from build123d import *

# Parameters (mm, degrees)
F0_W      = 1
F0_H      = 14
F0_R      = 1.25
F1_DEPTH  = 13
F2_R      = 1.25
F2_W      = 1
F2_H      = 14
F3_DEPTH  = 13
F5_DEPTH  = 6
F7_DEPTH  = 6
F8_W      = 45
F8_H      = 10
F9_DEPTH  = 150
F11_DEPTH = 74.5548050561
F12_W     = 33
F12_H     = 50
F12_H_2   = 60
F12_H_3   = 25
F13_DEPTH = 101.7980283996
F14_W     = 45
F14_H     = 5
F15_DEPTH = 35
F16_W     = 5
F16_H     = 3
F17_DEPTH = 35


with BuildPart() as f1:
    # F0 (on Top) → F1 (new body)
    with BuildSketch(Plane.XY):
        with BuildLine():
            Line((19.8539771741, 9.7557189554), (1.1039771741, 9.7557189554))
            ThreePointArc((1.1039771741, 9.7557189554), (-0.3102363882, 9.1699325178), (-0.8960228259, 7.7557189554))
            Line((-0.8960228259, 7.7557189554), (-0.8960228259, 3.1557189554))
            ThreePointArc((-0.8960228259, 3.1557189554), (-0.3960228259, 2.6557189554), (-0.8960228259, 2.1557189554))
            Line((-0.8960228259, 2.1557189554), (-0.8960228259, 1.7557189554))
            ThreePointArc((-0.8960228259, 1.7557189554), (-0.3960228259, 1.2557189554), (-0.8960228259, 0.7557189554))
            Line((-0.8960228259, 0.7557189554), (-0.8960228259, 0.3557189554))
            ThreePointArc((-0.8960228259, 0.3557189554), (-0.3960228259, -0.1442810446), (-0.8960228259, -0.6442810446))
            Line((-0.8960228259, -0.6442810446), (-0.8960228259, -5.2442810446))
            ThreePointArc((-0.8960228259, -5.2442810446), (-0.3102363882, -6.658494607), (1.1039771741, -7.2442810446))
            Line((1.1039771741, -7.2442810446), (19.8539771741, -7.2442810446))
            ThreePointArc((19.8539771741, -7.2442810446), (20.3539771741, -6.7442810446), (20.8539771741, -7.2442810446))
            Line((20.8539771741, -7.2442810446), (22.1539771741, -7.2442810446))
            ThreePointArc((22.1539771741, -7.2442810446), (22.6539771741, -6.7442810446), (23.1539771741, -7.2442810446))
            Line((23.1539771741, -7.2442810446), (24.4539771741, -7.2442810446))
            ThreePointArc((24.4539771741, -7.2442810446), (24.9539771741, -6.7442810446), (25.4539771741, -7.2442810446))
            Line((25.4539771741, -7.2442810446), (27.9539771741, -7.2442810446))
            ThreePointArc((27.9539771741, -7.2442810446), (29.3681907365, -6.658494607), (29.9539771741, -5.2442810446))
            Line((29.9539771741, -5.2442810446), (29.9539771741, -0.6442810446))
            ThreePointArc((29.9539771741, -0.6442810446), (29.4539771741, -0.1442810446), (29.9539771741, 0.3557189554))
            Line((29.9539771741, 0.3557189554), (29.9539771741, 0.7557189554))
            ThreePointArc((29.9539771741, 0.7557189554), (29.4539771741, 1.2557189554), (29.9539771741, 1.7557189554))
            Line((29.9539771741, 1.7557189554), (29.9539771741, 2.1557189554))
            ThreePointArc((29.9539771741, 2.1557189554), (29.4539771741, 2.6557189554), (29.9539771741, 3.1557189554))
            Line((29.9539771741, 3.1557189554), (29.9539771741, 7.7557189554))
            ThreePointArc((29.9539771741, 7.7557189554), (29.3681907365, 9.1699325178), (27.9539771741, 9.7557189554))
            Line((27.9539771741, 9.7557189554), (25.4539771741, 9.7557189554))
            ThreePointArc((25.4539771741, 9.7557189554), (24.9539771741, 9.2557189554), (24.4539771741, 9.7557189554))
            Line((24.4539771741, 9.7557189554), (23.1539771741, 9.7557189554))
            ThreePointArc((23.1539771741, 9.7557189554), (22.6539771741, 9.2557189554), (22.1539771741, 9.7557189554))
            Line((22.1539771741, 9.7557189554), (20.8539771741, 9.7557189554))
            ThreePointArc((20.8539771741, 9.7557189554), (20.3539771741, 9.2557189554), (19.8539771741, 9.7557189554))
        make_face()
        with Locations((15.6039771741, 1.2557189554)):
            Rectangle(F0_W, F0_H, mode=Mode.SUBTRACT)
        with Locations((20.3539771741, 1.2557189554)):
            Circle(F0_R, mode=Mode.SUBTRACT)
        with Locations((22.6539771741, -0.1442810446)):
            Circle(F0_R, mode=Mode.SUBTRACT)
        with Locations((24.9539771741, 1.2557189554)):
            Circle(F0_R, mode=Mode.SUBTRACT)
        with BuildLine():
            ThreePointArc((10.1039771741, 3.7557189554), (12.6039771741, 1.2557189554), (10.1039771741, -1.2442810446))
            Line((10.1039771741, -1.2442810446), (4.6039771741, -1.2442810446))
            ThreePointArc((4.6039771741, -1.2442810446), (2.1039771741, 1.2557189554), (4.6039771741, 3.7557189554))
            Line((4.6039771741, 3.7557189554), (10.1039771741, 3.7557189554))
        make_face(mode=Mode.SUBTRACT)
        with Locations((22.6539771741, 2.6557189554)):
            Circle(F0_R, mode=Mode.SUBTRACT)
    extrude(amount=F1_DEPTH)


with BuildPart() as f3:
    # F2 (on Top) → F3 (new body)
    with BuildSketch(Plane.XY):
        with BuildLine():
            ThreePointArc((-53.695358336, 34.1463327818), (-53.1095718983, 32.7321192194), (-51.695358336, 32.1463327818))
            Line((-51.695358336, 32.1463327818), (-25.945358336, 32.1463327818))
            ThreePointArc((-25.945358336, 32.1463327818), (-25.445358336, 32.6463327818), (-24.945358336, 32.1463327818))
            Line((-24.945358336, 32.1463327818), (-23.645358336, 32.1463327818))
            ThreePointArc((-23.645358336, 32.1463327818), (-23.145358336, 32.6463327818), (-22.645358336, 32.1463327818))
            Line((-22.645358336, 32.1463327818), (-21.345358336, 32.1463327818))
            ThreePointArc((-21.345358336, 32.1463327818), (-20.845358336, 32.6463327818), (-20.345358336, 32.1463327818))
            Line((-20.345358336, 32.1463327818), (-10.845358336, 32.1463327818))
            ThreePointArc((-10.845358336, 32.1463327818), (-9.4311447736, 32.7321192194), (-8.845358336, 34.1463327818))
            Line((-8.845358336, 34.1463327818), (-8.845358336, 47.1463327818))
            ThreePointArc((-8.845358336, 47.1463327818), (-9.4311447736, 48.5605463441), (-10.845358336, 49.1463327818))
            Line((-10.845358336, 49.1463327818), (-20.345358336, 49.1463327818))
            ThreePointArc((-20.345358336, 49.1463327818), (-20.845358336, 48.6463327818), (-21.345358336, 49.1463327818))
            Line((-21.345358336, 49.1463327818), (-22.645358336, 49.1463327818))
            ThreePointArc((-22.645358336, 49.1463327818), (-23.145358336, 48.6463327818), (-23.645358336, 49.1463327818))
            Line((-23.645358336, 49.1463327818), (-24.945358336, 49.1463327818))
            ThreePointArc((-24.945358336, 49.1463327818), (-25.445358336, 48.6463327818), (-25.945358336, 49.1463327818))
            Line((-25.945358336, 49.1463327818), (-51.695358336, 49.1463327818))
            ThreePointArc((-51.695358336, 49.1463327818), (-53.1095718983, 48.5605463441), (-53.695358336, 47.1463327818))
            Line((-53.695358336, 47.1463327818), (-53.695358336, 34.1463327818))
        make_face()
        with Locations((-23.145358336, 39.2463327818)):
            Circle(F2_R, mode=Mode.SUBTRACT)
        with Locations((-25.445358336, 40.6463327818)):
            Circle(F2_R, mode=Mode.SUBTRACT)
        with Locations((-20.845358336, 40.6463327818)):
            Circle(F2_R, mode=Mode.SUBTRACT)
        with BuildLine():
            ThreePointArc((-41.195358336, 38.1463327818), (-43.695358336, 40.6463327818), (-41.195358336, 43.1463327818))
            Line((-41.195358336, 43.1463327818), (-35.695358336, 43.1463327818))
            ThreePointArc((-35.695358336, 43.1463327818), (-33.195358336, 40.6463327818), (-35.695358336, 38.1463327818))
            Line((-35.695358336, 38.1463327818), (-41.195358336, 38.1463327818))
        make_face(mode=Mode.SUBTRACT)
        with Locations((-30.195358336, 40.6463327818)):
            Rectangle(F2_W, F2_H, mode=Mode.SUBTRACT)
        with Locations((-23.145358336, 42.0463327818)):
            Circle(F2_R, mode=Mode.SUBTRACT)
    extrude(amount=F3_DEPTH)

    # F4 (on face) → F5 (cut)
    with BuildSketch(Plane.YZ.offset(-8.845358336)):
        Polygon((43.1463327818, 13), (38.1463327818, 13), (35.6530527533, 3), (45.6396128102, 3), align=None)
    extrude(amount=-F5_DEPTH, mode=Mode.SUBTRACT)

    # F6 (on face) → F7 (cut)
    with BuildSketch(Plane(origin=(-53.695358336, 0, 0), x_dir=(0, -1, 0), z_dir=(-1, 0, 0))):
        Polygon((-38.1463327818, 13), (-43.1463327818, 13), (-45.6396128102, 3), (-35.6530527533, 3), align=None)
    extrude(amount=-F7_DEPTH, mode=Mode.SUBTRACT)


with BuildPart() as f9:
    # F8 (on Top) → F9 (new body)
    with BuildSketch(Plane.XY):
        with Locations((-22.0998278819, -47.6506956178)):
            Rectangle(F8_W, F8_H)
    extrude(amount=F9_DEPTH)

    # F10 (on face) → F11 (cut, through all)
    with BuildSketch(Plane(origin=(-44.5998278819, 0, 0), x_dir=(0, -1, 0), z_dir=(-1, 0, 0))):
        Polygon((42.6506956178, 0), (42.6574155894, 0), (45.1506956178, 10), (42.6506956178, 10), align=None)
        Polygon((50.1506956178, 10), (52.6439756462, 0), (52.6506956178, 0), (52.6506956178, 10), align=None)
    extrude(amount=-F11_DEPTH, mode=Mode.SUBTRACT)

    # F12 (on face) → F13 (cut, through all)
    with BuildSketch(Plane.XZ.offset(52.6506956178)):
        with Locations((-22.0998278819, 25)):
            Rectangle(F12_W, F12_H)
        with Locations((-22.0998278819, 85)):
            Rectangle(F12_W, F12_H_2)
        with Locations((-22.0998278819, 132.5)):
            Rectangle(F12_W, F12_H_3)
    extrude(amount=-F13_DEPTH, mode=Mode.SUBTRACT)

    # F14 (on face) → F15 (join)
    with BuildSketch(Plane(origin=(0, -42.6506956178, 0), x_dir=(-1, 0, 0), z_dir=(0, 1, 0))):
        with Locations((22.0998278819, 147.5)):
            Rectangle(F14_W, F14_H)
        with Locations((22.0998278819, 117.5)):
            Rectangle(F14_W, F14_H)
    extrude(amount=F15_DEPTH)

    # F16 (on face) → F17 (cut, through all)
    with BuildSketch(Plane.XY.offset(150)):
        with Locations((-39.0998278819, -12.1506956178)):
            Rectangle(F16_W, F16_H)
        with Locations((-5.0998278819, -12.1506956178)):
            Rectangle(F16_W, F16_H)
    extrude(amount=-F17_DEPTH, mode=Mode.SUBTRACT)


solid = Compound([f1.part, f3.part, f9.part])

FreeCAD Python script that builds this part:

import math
import FreeCAD as App
import Part
import Sketcher
Q = App.Units.Quantity


def add_polygon(sketch, points):
    """Adds a closed chain of lines whose ends are joined by coincident constraints."""
    first, n = sketch.GeometryCount, len(points)
    for a, b in zip(points, points[1:] + points[:1]):
        sketch.addGeometry(Part.LineSegment(App.Vector(*a, 0), App.Vector(*b, 0)), False)
    for i in range(n):
        sketch.addConstraint(Sketcher.Constraint("Coincident", first + i, 2, first + (i + 1) % n, 1))

doc = App.newDocument("Part")
body = doc.addObject("PartDesign::Body", "Body")

sketch1 = doc.addObject("Sketcher::SketchObject", "Sketch")
body.addObject(sketch1)
sketch1.AttachmentSupport = (doc.XY_Plane, [""])
sketch1.MapMode = "FlatFace"
sketch1.addGeometry(Part.LineSegment(App.Vector(19.85, 9.76, 0), App.Vector(1.1, 9.76, 0)), False)
sketch1.addGeometry(Part.ArcOfCircle(Part.Circle(App.Vector(1.1, 7.76, 0), App.Vector(0, 0, 1), 2), math.radians(90), math.radians(180)), False)
sketch1.addGeometry(Part.LineSegment(App.Vector(-0.9, 7.76, 0), App.Vector(-0.9, 3.16, 0)), False)
sketch1.addGeometry(Part.ArcOfCircle(Part.Circle(App.Vector(-0.9, 2.66, 0), App.Vector(0, 0, 1), 0.5), math.radians(-90), math.radians(90)), False)
sketch1.addGeometry(Part.LineSegment(App.Vector(-0.9, 2.16, 0), App.Vector(-0.9, 1.76, 0)), False)
sketch1.addGeometry(Part.ArcOfCircle(Part.Circle(App.Vector(-0.9, 1.26, 0), App.Vector(0, 0, 1), 0.5), math.radians(-90), math.radians(90)), False)
sketch1.addGeometry(Part.LineSegment(App.Vector(-0.9, 0.76, 0), App.Vector(-0.9, 0.36, 0)), False)
sketch1.addGeometry(Part.ArcOfCircle(Part.Circle(App.Vector(-0.9, -0.14, 0), App.Vector(0, 0, 1), 0.5), math.radians(-90), math.radians(90)), False)
sketch1.addGeometry(Part.LineSegment(App.Vector(-0.9, -0.64, 0), App.Vector(-0.9, -5.24, 0)), False)
sketch1.addGeometry(Part.ArcOfCircle(Part.Circle(App.Vector(1.1, -5.24, 0), App.Vector(0, 0, 1), 2), math.radians(180), math.radians(270)), False)
sketch1.addGeometry(Part.LineSegment(App.Vector(1.1, -7.24, 0), App.Vector(19.85, -7.24, 0)), False)
sketch1.addGeometry(Part.ArcOfCircle(Part.Circle(App.Vector(20.35, -7.24, 0), App.Vector(0, 0, 1), 0.5), math.radians(0), math.radians(180)), False)
sketch1.addGeometry(Part.LineSegment(App.Vector(20.85, -7.24, 0), App.Vector(22.15, -7.24, 0)), False)
sketch1.addGeometry(Part.ArcOfCircle(Part.Circle(App.Vector(22.65, -7.24, 0), App.Vector(0, 0, 1), 0.5), math.radians(0), math.radians(180)), False)
sketch1.addGeometry(Part.LineSegment(App.Vector(23.15, -7.24, 0), App.Vector(24.45, -7.24, 0)), False)
sketch1.addGeometry(Part.ArcOfCircle(Part.Circle(App.Vector(24.95, -7.24, 0), App.Vector(0, 0, 1), 0.5), math.radians(0), math.radians(180)), False)
sketch1.addGeometry(Part.LineSegment(App.Vector(25.45, -7.24, 0), App.Vector(27.95, -7.24, 0)), False)
sketch1.addGeometry(Part.ArcOfCircle(Part.Circle(App.Vector(27.95, -5.24, 0), App.Vector(0, 0, 1), 2), math.radians(-90), math.radians(0)), False)
sketch1.addGeometry(Part.LineSegment(App.Vector(29.95, -5.24, 0), App.Vector(29.95, -0.64, 0)), False)
sketch1.addGeometry(Part.ArcOfCircle(Part.Circle(App.Vector(29.95, -0.14, 0), App.Vector(0, 0, 1), 0.5), math.radians(90), math.radians(270)), False)
sketch1.addGeometry(Part.LineSegment(App.Vector(29.95, 0.36, 0), App.Vector(29.95, 0.76, 0)), False)
sketch1.addGeometry(Part.ArcOfCircle(Part.Circle(App.Vector(29.95, 1.26, 0), App.Vector(0, 0, 1), 0.5), math.radians(90), math.radians(270)), False)
sketch1.addGeometry(Part.LineSegment(App.Vector(29.95, 1.76, 0), App.Vector(29.95, 2.16, 0)), False)
sketch1.addGeometry(Part.ArcOfCircle(Part.Circle(App.Vector(29.95, 2.66, 0), App.Vector(0, 0, 1), 0.5), math.radians(90), math.radians(270)), False)
sketch1.addGeometry(Part.LineSegment(App.Vector(29.95, 3.16, 0), App.Vector(29.95, 7.76, 0)), False)
sketch1.addGeometry(Part.ArcOfCircle(Part.Circle(App.Vector(27.95, 7.76, 0), App.Vector(0, 0, 1), 2), math.radians(0), math.radians(90)), False)
sketch1.addGeometry(Part.LineSegment(App.Vector(27.95, 9.76, 0), App.Vector(25.45, 9.76, 0)), False)
sketch1.addGeometry(Part.ArcOfCircle(Part.Circle(App.Vector(24.95, 9.76, 0), App.Vector(0, 0, 1), 0.5), math.radians(180), math.radians(360)), False)
sketch1.addGeometry(Part.LineSegment(App.Vector(24.45, 9.76, 0), App.Vector(23.15, 9.76, 0)), False)
sketch1.addGeometry(Part.ArcOfCircle(Part.Circle(App.Vector(22.65, 9.76, 0), App.Vector(0, 0, 1), 0.5), math.radians(180), math.radians(360)), False)
sketch1.addGeometry(Part.LineSegment(App.Vector(22.15, 9.76, 0), App.Vector(20.85, 9.76, 0)), False)
sketch1.addGeometry(Part.ArcOfCircle(Part.Circle(App.Vector(20.35, 9.76, 0), App.Vector(0, 0, 1), 0.5), math.radians(180), math.radians(360)), False)
sketch1.addGeometry(Part.Circle(App.Vector(22.65, -0.14, 0), App.Vector(0, 0, 1), 1.25), False)
sketch1.addGeometry(Part.LineSegment(App.Vector(4.6, 3.76, 0), App.Vector(10.1, 3.76, 0)), False)
sketch1.addGeometry(Part.ArcOfCircle(Part.Circle(App.Vector(10.1, 1.26, 0), App.Vector(0, 0, 1), 2.5), math.radians(-90), math.radians(90)), False)
sketch1.addGeometry(Part.LineSegment(App.Vector(10.1, -1.24, 0), App.Vector(4.6, -1.24, 0)), False)
sketch1.addGeometry(Part.ArcOfCircle(Part.Circle(App.Vector(4.6, 1.26, 0), App.Vector(0, 0, 1), 2.5), math.radians(90), math.radians(270)), False)
add_polygon(sketch1, [(16.1, -5.74), (15.1, -5.74), (15.1, 8.26), (16.1, 8.26)])
sketch1.addGeometry(Part.Circle(App.Vector(20.35, 1.26, 0), App.Vector(0, 0, 1), 1.25), False)
sketch1.addGeometry(Part.Circle(App.Vector(22.65, 2.66, 0), App.Vector(0, 0, 1), 1.25), False)
sketch1.addGeometry(Part.Circle(App.Vector(24.95, 1.26, 0), App.Vector(0, 0, 1), 1.25), False)
sketch1.addConstraint(Sketcher.Constraint("Tangent", 0, 2, 1, 1))
sketch1.addConstraint(Sketcher.Constraint("Tangent", 1, 2, 2, 1))
sketch1.addConstraint(Sketcher.Constraint("Coincident", 2, 2, 3, 2))
sketch1.addConstraint(Sketcher.Constraint("Coincident", 3, 1, 4, 1))
sketch1.addConstraint(Sketcher.Constraint("Coincident", 4, 2, 5, 2))
sketch1.addConstraint(Sketcher.Constraint("Coincident", 5, 1, 6, 1))
sketch1.addConstraint(Sketcher.Constraint("Coincident", 6, 2, 7, 2))
sketch1.addConstraint(Sketcher.Constraint("Coincident", 7, 1, 8, 1))
sketch1.addConstraint(Sketcher.Constraint("Tangent", 8, 2, 9, 1))
sketch1.addConstraint(Sketcher.Constraint("Tangent", 9, 2, 10, 1))
sketch1.addConstraint(Sketcher.Constraint("Coincident", 10, 2, 11, 2))
sketch1.addConstraint(Sketcher.Constraint("Coincident", 11, 1, 12, 1))
sketch1.addConstraint(Sketcher.Constraint("Coincident", 12, 2, 13, 2))
sketch1.addConstraint(Sketcher.Constraint("Coincident", 13, 1, 14, 1))
sketch1.addConstraint(Sketcher.Constraint("Coincident", 14, 2, 15, 2))
sketch1.addConstraint(Sketcher.Constraint("Coincident", 15, 1, 16, 1))
sketch1.addConstraint(Sketcher.Constraint("Tangent", 16, 2, 17, 1))
sketch1.addConstraint(Sketcher.Constraint("Tangent", 17, 2, 18, 1))
sketch1.addConstraint(Sketcher.Constraint("Coincident", 18, 2, 19, 2))
sketch1.addConstraint(Sketcher.Constraint("Coincident", 19, 1, 20, 1))
sketch1.addConstraint(Sketcher.Constraint("Coincident", 20, 2, 21, 2))
sketch1.addConstraint(Sketcher.Constraint("Coincident", 21, 1, 22, 1))
sketch1.addConstraint(Sketcher.Constraint("Coincident", 22, 2, 23, 2))
sketch1.addConstraint(Sketcher.Constraint("Coincident", 23, 1, 24, 1))
sketch1.addConstraint(Sketcher.Constraint("Tangent", 24, 2, 25, 1))
sketch1.addConstraint(Sketcher.Constraint("Tangent", 25, 2, 26, 1))
sketch1.addConstraint(Sketcher.Constraint("Coincident", 26, 2, 27, 2))
sketch1.addConstraint(Sketcher.Constraint("Coincident", 27, 1, 28, 1))
sketch1.addConstraint(Sketcher.Constraint("Coincident", 28, 2, 29, 2))
sketch1.addConstraint(Sketcher.Constraint("Coincident", 29, 1, 30, 1))
sketch1.addConstraint(Sketcher.Constraint("Coincident", 30, 2, 31, 2))
sketch1.addConstraint(Sketcher.Constraint("Coincident", 31, 1, 0, 1))
sketch1.addConstraint(Sketcher.Constraint("Tangent", 33, 2, 34, 2))
sketch1.addConstraint(Sketcher.Constraint("Tangent", 34, 1, 35, 1))
sketch1.addConstraint(Sketcher.Constraint("Tangent", 35, 2, 36, 2))
sketch1.addConstraint(Sketcher.Constraint("Tangent", 36, 1, 33, 1))
sketch1.addConstraint(Sketcher.Constraint("Horizontal", 0))
sketch1.addConstraint(Sketcher.Constraint("Vertical", 2))
sketch1.addConstraint(Sketcher.Constraint("Vertical", 4))
sketch1.addConstraint(Sketcher.Constraint("Vertical", 6))
sketch1.addConstraint(Sketcher.Constraint("Vertical", 8))
sketch1.addConstraint(Sketcher.Constraint("Horizontal", 10))
sketch1.addConstraint(Sketcher.Constraint("Horizontal", 12))
sketch1.addConstraint(Sketcher.Constraint("Horizontal", 14))
sketch1.addConstraint(Sketcher.Constraint("Horizontal", 16))
sketch1.addConstraint(Sketcher.Constraint("Vertical", 18))
sketch1.addConstraint(Sketcher.Constraint("Vertical", 20))
sketch1.addConstraint(Sketcher.Constraint("Vertical", 22))
sketch1.addConstraint(Sketcher.Constraint("Vertical", 24))
sketch1.addConstraint(Sketcher.Constraint("Horizontal", 26))
sketch1.addConstraint(Sketcher.Constraint("Horizontal", 28))
sketch1.addConstraint(Sketcher.Constraint("Horizontal", 30))
sketch1.addConstraint(Sketcher.Constraint("Horizontal", 33))
sketch1.addConstraint(Sketcher.Constraint("Horizontal", 35))
sketch1.addConstraint(Sketcher.Constraint("Horizontal", 37))
sketch1.addConstraint(Sketcher.Constraint("Vertical", 38))
sketch1.addConstraint(Sketcher.Constraint("Horizontal", 39))
sketch1.addConstraint(Sketcher.Constraint("Vertical", 40))
sketch1.addConstraint(Sketcher.Constraint("Equal", 3, 5))
sketch1.addConstraint(Sketcher.Constraint("Equal", 5, 7))
sketch1.addConstraint(Sketcher.Constraint("Equal", 1, 9))
sketch1.addConstraint(Sketcher.Constraint("Equal", 7, 11))
sketch1.addConstraint(Sketcher.Constraint("Equal", 11, 13))
sketch1.addConstraint(Sketcher.Constraint("Equal", 13, 15))
sketch1.addConstraint(Sketcher.Constraint("Equal", 9, 17))
sketch1.addConstraint(Sketcher.Constraint("Equal", 15, 19))
sketch1.addConstraint(Sketcher.Constraint("Equal", 19, 21))
sketch1.addConstraint(Sketcher.Constraint("Equal", 21, 23))
sketch1.addConstraint(Sketcher.Constraint("Equal", 17, 25))
sketch1.addConstraint(Sketcher.Constraint("Equal", 23, 27))
sketch1.addConstraint(Sketcher.Constraint("Equal", 27, 29))
sketch1.addConstraint(Sketcher.Constraint("Equal", 29, 31))
sketch1.addConstraint(Sketcher.Constraint("Equal", 32, 41))
sketch1.addConstraint(Sketcher.Constraint("Equal", 41, 42))
sketch1.addConstraint(Sketcher.Constraint("Equal", 42, 43))
sketch1.addConstraint(Sketcher.Constraint("Horizontal", 11, 3, 13, 3))
sketch1.addConstraint(Sketcher.Constraint("Horizontal", 13, 3, 15, 3))
sketch1.addConstraint(Sketcher.Constraint("Horizontal", 9, 3, 17, 3))
sketch1.addConstraint(Sketcher.Constraint("Horizontal", 7, 3, 19, 3))
sketch1.addConstraint(Sketcher.Constraint("Horizontal", 5, 3, 21, 3))
sketch1.addConstraint(Sketcher.Constraint("Horizontal", 3, 3, 23, 3))
sketch1.addConstraint(Sketcher.Constraint("Horizontal", 1, 3, 25, 3))
sketch1.addConstraint(Sketcher.Constraint("Horizontal", 27, 3, 29, 3))
sketch1.addConstraint(Sketcher.Constraint("Horizontal", 29, 3, 31, 3))
sketch1.addConstraint(Sketcher.Constraint("Horizontal", 19, 3, 32, 3))
sketch1.addConstraint(Sketcher.Constraint("Horizontal", 21, 3, 34, 3))
sketch1.addConstraint(Sketcher.Constraint("Horizontal", 36, 3, 41, 3))
sketch1.addConstraint(Sketcher.Constraint("Horizontal", 23, 3, 42, 3))
sketch1.addConstraint(Sketcher.Constraint("Horizontal", 41, 3, 43, 3))
sketch1.addConstraint(Sketcher.Constraint("Horizontal", 31, 3, 0, 2))
sketch1.addConstraint(Sketcher.Constraint("Horizontal", 15, 3, 9, 2))
sketch1.addConstraint(Sketcher.Constraint("Horizontal", 10, 2, 11, 1))
sketch1.addConstraint(Sketcher.Constraint("Horizontal", 12, 2, 13, 1))
sketch1.addConstraint(Sketcher.Constraint("Horizontal", 26, 2, 27, 1))
sketch1.addConstraint(Sketcher.Constraint("Horizontal", 28, 2, 29, 1))
sketch1.addConstraint(Sketcher.Constraint("Vertical", 3, 3, 5, 3))
sketch1.addConstraint(Sketcher.Constraint("Vertical", 5, 3, 7, 3))
sketch1.addConstraint(Sketcher.Constraint("Vertical", 1, 3, 9, 3))
sketch1.addConstraint(Sketcher.Constraint("Vertical", 19, 3, 21, 3))
sketch1.addConstraint(Sketcher.Constraint("Vertical", 21, 3, 23, 3))
sketch1.addConstraint(Sketcher.Constraint("Vertical", 17, 3, 25, 3))
sketch1.addConstraint(Sketcher.Constraint("Vertical", 15, 3, 27, 3))
sketch1.addConstraint(Sketcher.Constraint("Vertical", 13, 3, 29, 3))
sketch1.addConstraint(Sketcher.Constraint("Vertical", 11, 3, 31, 3))
sketch1.addConstraint(Sketcher.Constraint("Vertical", 29, 3, 32, 3))
sketch1.addConstraint(Sketcher.Constraint("Vertical", 31, 3, 41, 3))
sketch1.addConstraint(Sketcher.Constraint("Vertical", 32, 3, 42, 3))
sketch1.addConstraint(Sketcher.Constraint("Vertical", 27, 3, 43, 3))
sketch1.addConstraint(Sketcher.Constraint("Vertical", 7, 3, 1, 2))
sketch1.addConstraint(Sketcher.Constraint("Vertical", 2, 2, 3, 1))
sketch1.addConstraint(Sketcher.Constraint("Vertical", 4, 2, 5, 1))
sketch1.addConstraint(Sketcher.Constraint("Vertical", 23, 3, 17, 2))
sketch1.addConstraint(Sketcher.Constraint("Vertical", 18, 2, 19, 1))
sketch1.addConstraint(Sketcher.Constraint("Vertical", 20, 2, 21, 1))
sketch1.addConstraint(Sketcher.Constraint("Equal", 12, 14))
sketch1.addConstraint(Sketcher.Constraint("Equal", 4, 6))
sketch1.addConstraint(Sketcher.Constraint("Equal", 2, 8))
sketch1.addConstraint(Sketcher.Constraint("Radius", 1, Q("2 mm")))
sketch1.addConstraint(Sketcher.Constraint("Diameter", 32, Q("2.5 mm")))
sketch1.addConstraint(Sketcher.Constraint("Radius", 3, Q("0.5 mm")))
sketch1.addConstraint(Sketcher.Constraint("Radius", 34, Q("2.5 mm")))
sketch1.addConstraint(Sketcher.Constraint("DistanceX", 37, 2, 37, 1, Q("1 mm")))
sketch1.addConstraint(Sketcher.Constraint("DistanceY", 38, 1, 38, 2, Q("14 mm")))
sketch1.addConstraint(Sketcher.Constraint("DistanceX", 12, 1, 12, 2, Q("1.3 mm")))
sketch1.addConstraint(Sketcher.Constraint("DistanceX", 16, 1, 16, 2, Q("2.5 mm")))
sketch1.addConstraint(Sketcher.Constraint("DistanceX", 33, 1, 33, 2, Q("5.5 mm")))
sketch1.addConstraint(Sketcher.Constraint("DistanceY", 2, 2, 2, 1, Q("4.6 mm")))
sketch1.addConstraint(Sketcher.Constraint("DistanceY", 4, 2, 4, 1, Q("0.4 mm")))
sketch1.addConstraint(Sketcher.Constraint("DistanceX", 0, 2, 0, 1, Q("18.75 mm")))
sketch1.addConstraint(Sketcher.Constraint("DistanceY", -1, 1, 1, 3, Q("7.755719 mm")))
sketch1.addConstraint(Sketcher.Constraint("DistanceY", 37, 2, -1, 1, Q("5.744281 mm")))
sketch1.addConstraint(Sketcher.Constraint("DistanceX", -1, 1, 1, 3, Q("1.103977 mm")))
sketch1.addConstraint(Sketcher.Constraint("DistanceX", -1, 1, 34, 3, Q("10.103977 mm")))
sketch1.addConstraint(Sketcher.Constraint("DistanceX", -1, 1, 37, 2, Q("15.103977 mm")))
pad1 = doc.addObject("PartDesign::Pad", "Pad")
body.addObject(pad1)
pad1.Profile = sketch1
pad1.Length = 13
body2 = doc.addObject("PartDesign::Body", "Body001")

sketch2 = doc.addObject("Sketcher::SketchObject", "Sketch001")
body2.addObject(sketch2)
sketch2.AttachmentSupport = (doc.getObject("XY_Plane001"), [""])
sketch2.MapMode = "FlatFace"
sketch2.addGeometry(Part.ArcOfCircle(Part.Circle(App.Vector(-51.7, 34.1, 0), App.Vector(0, 0, 1), 2), math.radians(180), math.radians(270)), False)
sketch2.addGeometry(Part.LineSegment(App.Vector(-51.7, 32.1, 0), App.Vector(-25.9, 32.1, 0)), False)
sketch2.addGeometry(Part.ArcOfCircle(Part.Circle(App.Vector(-25.4, 32.1, 0), App.Vector(0, 0, 1), 0.5), math.radians(0), math.radians(180)), False)
sketch2.addGeometry(Part.LineSegment(App.Vector(-24.9, 32.1, 0), App.Vector(-23.6, 32.1, 0)), False)
sketch2.addGeometry(Part.ArcOfCircle(Part.Circle(App.Vector(-23.1, 32.1, 0), App.Vector(0, 0, 1), 0.5), math.radians(0), math.radians(180)), False)
sketch2.addGeometry(Part.LineSegment(App.Vector(-22.6, 32.1, 0), App.Vector(-21.3, 32.1, 0)), False)
sketch2.addGeometry(Part.ArcOfCircle(Part.Circle(App.Vector(-20.8, 32.1, 0), App.Vector(0, 0, 1), 0.5), math.radians(0), math.radians(180)), False)
sketch2.addGeometry(Part.LineSegment(App.Vector(-20.3, 32.1, 0), App.Vector(-10.8, 32.1, 0)), False)
sketch2.addGeometry(Part.ArcOfCircle(Part.Circle(App.Vector(-10.8, 34.1, 0), App.Vector(0, 0, 1), 2), math.radians(-90), math.radians(0)), False)
sketch2.addGeometry(Part.LineSegment(App.Vector(-8.8, 34.1, 0), App.Vector(-8.8, 47.1, 0)), False)
sketch2.addGeometry(Part.ArcOfCircle(Part.Circle(App.Vector(-10.8, 47.1, 0), App.Vector(0, 0, 1), 2), math.radians(0), math.radians(90)), False)
sketch2.addGeometry(Part.LineSegment(App.Vector(-10.8, 49.1, 0), App.Vector(-20.3, 49.1, 0)), False)
sketch2.addGeometry(Part.ArcOfCircle(Part.Circle(App.Vector(-20.8, 49.1, 0), App.Vector(0, 0, 1), 0.5), math.radians(180), math.radians(360)), False)
sketch2.addGeometry(Part.LineSegment(App.Vector(-21.3, 49.1, 0), App.Vector(-22.6, 49.1, 0)), False)
sketch2.addGeometry(Part.ArcOfCircle(Part.Circle(App.Vector(-23.1, 49.1, 0), App.Vector(0, 0, 1), 0.5), math.radians(180), math.radians(360)), False)
sketch2.addGeometry(Part.LineSegment(App.Vector(-23.6, 49.1, 0), App.Vector(-24.9, 49.1, 0)), False)
sketch2.addGeometry(Part.ArcOfCircle(Part.Circle(App.Vector(-25.4, 49.1, 0), App.Vector(0, 0, 1), 0.5), math.radians(180), math.radians(360)), False)
sketch2.addGeometry(Part.LineSegment(App.Vector(-25.9, 49.1, 0), App.Vector(-51.7, 49.1, 0)), False)
sketch2.addGeometry(Part.ArcOfCircle(Part.Circle(App.Vector(-51.7, 47.1, 0), App.Vector(0, 0, 1), 2), math.radians(90), math.radians(180)), False)
sketch2.addGeometry(Part.LineSegment(App.Vector(-53.7, 47.1, 0), App.Vector(-53.7, 34.1, 0)), False)
sketch2.addGeometry(Part.Circle(App.Vector(-23.1, 39.2, 0), App.Vector(0, 0, 1), 1.2), False)
sketch2.addGeometry(Part.LineSegment(App.Vector(-35.7, 38.1, 0), App.Vector(-41.2, 38.1, 0)), False)
sketch2.addGeometry(Part.ArcOfCircle(Part.Circle(App.Vector(-41.2, 40.6, 0), App.Vector(0, 0, 1), 2.5), math.radians(90), math.radians(270)), False)
sketch2.addGeometry(Part.LineSegment(App.Vector(-41.2, 43.1, 0), App.Vector(-35.7, 43.1, 0)), False)
sketch2.addGeometry(Part.ArcOfCircle(Part.Circle(App.Vector(-35.7, 40.6, 0), App.Vector(0, 0, 1), 2.5), math.radians(-90), math.radians(90)), False)
add_polygon(sketch2, [(-29.7, 33.6), (-30.7, 33.6), (-30.7, 47.6), (-29.7, 47.6)])
sketch2.addGeometry(Part.Circle(App.Vector(-25.4, 40.6, 0), App.Vector(0, 0, 1), 1.2), False)
sketch2.addGeometry(Part.Circle(App.Vector(-23.1, 42, 0), App.Vector(0, 0, 1), 1.2), False)
sketch2.addGeometry(Part.Circle(App.Vector(-20.8, 40.6, 0), App.Vector(0, 0, 1), 1.2), False)
sketch2.addConstraint(Sketcher.Constraint("Tangent", 0, 2, 1, 1))
sketch2.addConstraint(Sketcher.Constraint("Coincident", 1, 2, 2, 2))
sketch2.addConstraint(Sketcher.Constraint("Coincident", 2, 1, 3, 1))
sketch2.addConstraint(Sketcher.Constraint("Coincident", 3, 2, 4, 2))
sketch2.addConstraint(Sketcher.Constraint("Coincident", 4, 1, 5, 1))
sketch2.addConstraint(Sketcher.Constraint("Coincident", 5, 2, 6, 2))
sketch2.addConstraint(Sketcher.Constraint("Coincident", 6, 1, 7, 1))
sketch2.addConstraint(Sketcher.Constraint("Tangent", 7, 2, 8, 1))
sketch2.addConstraint(Sketcher.Constraint("Tangent", 8, 2, 9, 1))
sketch2.addConstraint(Sketcher.Constraint("Tangent", 9, 2, 10, 1))
sketch2.addConstraint(Sketcher.Constraint("Tangent", 10, 2, 11, 1))
sketch2.addConstraint(Sketcher.Constraint("Coincident", 11, 2, 12, 2))
sketch2.addConstraint(Sketcher.Constraint("Coincident", 12, 1, 13, 1))
sketch2.addConstraint(Sketcher.Constraint("Coincident", 13, 2, 14, 2))
sketch2.addConstraint(Sketcher.Constraint("Coincident", 14, 1, 15, 1))
sketch2.addConstraint(Sketcher.Constraint("Coincident", 15, 2, 16, 2))
sketch2.addConstraint(Sketcher.Constraint("Coincident", 16, 1, 17, 1))
sketch2.addConstraint(Sketcher.Constraint("Tangent", 17, 2, 18, 1))
sketch2.addConstraint(Sketcher.Constraint("Tangent", 18, 2, 19, 1))
sketch2.addConstraint(Sketcher.Constraint("Tangent", 19, 2, 0, 1))
sketch2.addConstraint(Sketcher.Constraint("Tangent", 21, 2, 22, 2))
sketch2.addConstraint(Sketcher.Constraint("Tangent", 22, 1, 23, 1))
sketch2.addConstraint(Sketcher.Constraint("Tangent", 23, 2, 24, 2))
sketch2.addConstraint(Sketcher.Constraint("Tangent", 24, 1, 21, 1))
sketch2.addConstraint(Sketcher.Constraint("Horizontal", 1))
sketch2.addConstraint(Sketcher.Constraint("Horizontal", 3))
sketch2.addConstraint(Sketcher.Constraint("Horizontal", 5))
sketch2.addConstraint(Sketcher.Constraint("Horizontal", 7))
sketch2.addConstraint(Sketcher.Constraint("Vertical", 9))
sketch2.addConstraint(Sketcher.Constraint("Horizontal", 11))
sketch2.addConstraint(Sketcher.Constraint("Horizontal", 13))
sketch2.addConstraint(Sketcher.Constraint("Horizontal", 15))
sketch2.addConstraint(Sketcher.Constraint("Horizontal", 17))
sketch2.addConstraint(Sketcher.Constraint("Vertical", 19))
sketch2.addConstraint(Sketcher.Constraint("Horizontal", 21))
sketch2.addConstraint(Sketcher.Constraint("Horizontal", 23))
sketch2.addConstraint(Sketcher.Constraint("Horizontal", 25))
sketch2.addConstraint(Sketcher.Constraint("Vertical", 26))
sketch2.addConstraint(Sketcher.Constraint("Horizontal", 27))
sketch2.addConstraint(Sketcher.Constraint("Vertical", 28))
sketch2.addConstraint(Sketcher.Constraint("Equal", 2, 4))
sketch2.addConstraint(Sketcher.Constraint("Equal", 4, 6))
sketch2.addConstraint(Sketcher.Constraint("Equal", 0, 8))
sketch2.addConstraint(Sketcher.Constraint("Equal", 8, 10))
sketch2.addConstraint(Sketcher.Constraint("Equal", 6, 12))
sketch2.addConstraint(Sketcher.Constraint("Equal", 12, 14))
sketch2.addConstraint(Sketcher.Constraint("Equal", 14, 16))
sketch2.addConstraint(Sketcher.Constraint("Equal", 10, 18))
sketch2.addConstraint(Sketcher.Constraint("Equal", 20, 29))
sketch2.addConstraint(Sketcher.Constraint("Equal", 29, 30))
sketch2.addConstraint(Sketcher.Constraint("Equal", 30, 31))
sketch2.addConstraint(Sketcher.Constraint("Horizontal", 2, 3, 4, 3))
sketch2.addConstraint(Sketcher.Constraint("Horizontal", 4, 3, 6, 3))
sketch2.addConstraint(Sketcher.Constraint("Horizontal", 0, 3, 8, 3))
sketch2.addConstraint(Sketcher.Constraint("Horizontal", 12, 3, 14, 3))
sketch2.addConstraint(Sketcher.Constraint("Horizontal", 14, 3, 16, 3))
sketch2.addConstraint(Sketcher.Constraint("Horizontal", 10, 3, 18, 3))
sketch2.addConstraint(Sketcher.Constraint("Horizontal", 24, 3, 29, 3))
sketch2.addConstraint(Sketcher.Constraint("Horizontal", 29, 3, 31, 3))
sketch2.addConstraint(Sketcher.Constraint("Horizontal", 6, 3, 0, 2))
sketch2.addConstraint(Sketcher.Constraint("Horizontal", 1, 2, 2, 1))
sketch2.addConstraint(Sketcher.Constraint("Horizontal", 3, 2, 4, 1))
sketch2.addConstraint(Sketcher.Constraint("Horizontal", 16, 3, 10, 2))
sketch2.addConstraint(Sketcher.Constraint("Horizontal", 11, 2, 12, 1))
sketch2.addConstraint(Sketcher.Constraint("Horizontal", 13, 2, 14, 1))
sketch2.addConstraint(Sketcher.Constraint("Vertical", 6, 3, 12, 3))
sketch2.addConstraint(Sketcher.Constraint("Vertical", 4, 3, 14, 3))
sketch2.addConstraint(Sketcher.Constraint("Vertical", 2, 3, 16, 3))
sketch2.addConstraint(Sketcher.Constraint("Vertical", 14, 3, 20, 3))
sketch2.addConstraint(Sketcher.Constraint("Vertical", 16, 3, 29, 3))
sketch2.addConstraint(Sketcher.Constraint("Vertical", 20, 3, 30, 3))
sketch2.addConstraint(Sketcher.Constraint("Vertical", 12, 3, 31, 3))
sketch2.addConstraint(Sketcher.Constraint("Equal", 3, 5))
sketch2.addConstraint(Sketcher.Constraint("Radius", 0, Q("2 mm")))
sketch2.addConstraint(Sketcher.Constraint("Diameter", 20, Q("2.5 mm")))
sketch2.addConstraint(Sketcher.Constraint("Radius", 2, Q("0.5 mm")))
sketch2.addConstraint(Sketcher.Constraint("Radius", 22, Q("2.5 mm")))
sketch2.addConstraint(Sketcher.Constraint("DistanceX", 25, 2, 25, 1, Q("1 mm")))
sketch2.addConstraint(Sketcher.Constraint("DistanceY", 9, 1, 9, 2, Q("13 mm")))
sketch2.addConstraint(Sketcher.Constraint("DistanceY", 26, 1, 26, 2, Q("14 mm")))
sketch2.addConstraint(Sketcher.Constraint("DistanceX", 3, 1, 3, 2, Q("1.3 mm")))
sketch2.addConstraint(Sketcher.Constraint("DistanceX", 7, 1, 7, 2, Q("9.5 mm")))
sketch2.addConstraint(Sketcher.Constraint("DistanceX", 21, 2, 21, 1, Q("5.5 mm")))
sketch2.addConstraint(Sketcher.Constraint("DistanceX", 0, 2, 24, 3, Q("16 mm")))
sketch2.addConstraint(Sketcher.Constraint("DistanceY", 0, 3, 21, 2, Q("4 mm")))
sketch2.addConstraint(Sketcher.Constraint("DistanceX", 24, 1, 25, 2, Q("5 mm")))
sketch2.addConstraint(Sketcher.Constraint("DistanceX", 1, 1, 1, 2, Q("25.75 mm")))
sketch2.addConstraint(Sketcher.Constraint("DistanceY", 4, 3, 20, 3, Q("7.1 mm")))
sketch2.addConstraint(Sketcher.Constraint("DistanceY", 29, 3, 30, 3, Q("1.4 mm")))
sketch2.addConstraint(Sketcher.Constraint("DistanceY", 1, 2, 25, 2, Q("1.5 mm")))
sketch2.addConstraint(Sketcher.Constraint("DistanceX", 0, 3, -1, 1, Q("51.695358 mm")))
sketch2.addConstraint(Sketcher.Constraint("DistanceY", -1, 1, 0, 3, Q("34.146333 mm")))
pad2 = doc.addObject("PartDesign::Pad", "Pad001")
body2.addObject(pad2)
pad2.Profile = sketch2
pad2.Length = 13

sketch3 = doc.addObject("Sketcher::SketchObject", "Sketch002")
body2.addObject(sketch3)
sketch3.AttachmentSupport = (doc.getObject("YZ_Plane001"), [""])
sketch3.MapMode = "FlatFace"
sketch3.AttachmentOffset = App.Placement(App.Vector(0, 0, -8.845358), App.Rotation())
add_polygon(sketch3, [(43, 13), (38, 13), (36, 3), (46, 3)])
sketch3.addConstraint(Sketcher.Constraint("Horizontal", 0))
sketch3.addConstraint(Sketcher.Constraint("Horizontal", 2))
sketch3.addConstraint(Sketcher.Constraint("Equal", 1, 3))
sketch3.addConstraint(Sketcher.Constraint("DistanceX", 0, 2, 0, 1, Q("5 mm")))
sketch3.addConstraint(Sketcher.Constraint("Angle", 1, Q("-104 deg")))
sketch3.addConstraint(Sketcher.Constraint("DistanceY", -1, 1, 0, 2, Q("13 mm")))
sketch3.addConstraint(Sketcher.Constraint("DistanceY", -1, 1, 1, 2, Q("3 mm")))
sketch3.addConstraint(Sketcher.Constraint("DistanceX", -1, 1, 0, 2, Q("38.146333 mm")))
pocket1 = doc.addObject("PartDesign::Pocket", "Pocket")
body2.addObject(pocket1)
pocket1.Profile = sketch3
pocket1.Length = 6

sketch4 = doc.addObject("Sketcher::SketchObject", "Sketch003")
body2.addObject(sketch4)
sketch4.AttachmentSupport = (doc.getObject("YZ_Plane001"), [""])
sketch4.MapMode = "FlatFace"
sketch4.AttachmentOffset = App.Placement(App.Vector(0, 0, -53.695358), App.Rotation())
add_polygon(sketch4, [(38, 13), (43, 13), (46, 3), (36, 3)])
sketch4.addConstraint(Sketcher.Constraint("Horizontal", 0))
sketch4.addConstraint(Sketcher.Constraint("Horizontal", 2))
sketch4.addConstraint(Sketcher.Constraint("Equal", 1, 3))
sketch4.addConstraint(Sketcher.Constraint("DistanceX", 0, 1, 0, 2, Q("5 mm")))
sketch4.addConstraint(Sketcher.Constraint("Angle", 1, Q("-76 deg")))
sketch4.addConstraint(Sketcher.Constraint("DistanceY", -1, 1, 0, 2, Q("13 mm")))
sketch4.addConstraint(Sketcher.Constraint("DistanceY", -1, 1, 1, 2, Q("3 mm")))
sketch4.addConstraint(Sketcher.Constraint("DistanceX", -1, 1, 0, 2, Q("43.146333 mm")))
pocket2 = doc.addObject("PartDesign::Pocket", "Pocket001")
body2.addObject(pocket2)
pocket2.Profile = sketch4
pocket2.Length = 6
pocket2.Reversed = True
body3 = doc.addObject("PartDesign::Body", "Body002")

sketch5 = doc.addObject("Sketcher::SketchObject", "Sketch004")
body3.addObject(sketch5)
sketch5.AttachmentSupport = (doc.getObject("XY_Plane002"), [""])
sketch5.MapMode = "FlatFace"
add_polygon(sketch5, [(-45, -43), (-45, -53), (0, -53), (0, -43)])
sketch5.addConstraint(Sketcher.Constraint("Vertical", 0))
sketch5.addConstraint(Sketcher.Constraint("Horizontal", 1))
sketch5.addConstraint(Sketcher.Constraint("Vertical", 2))
sketch5.addConstraint(Sketcher.Constraint("Horizontal", 3))
sketch5.addConstraint(Sketcher.Constraint("DistanceX", 1, 1, 1, 2, Q("45 mm")))
sketch5.addConstraint(Sketcher.Constraint("DistanceY", 0, 2, 0, 1, Q("10 mm")))
sketch5.addConstraint(Sketcher.Constraint("DistanceX", 0, 2, -1, 1, Q("44.599828 mm")))
sketch5.addConstraint(Sketcher.Constraint("DistanceY", 0, 2, -1, 1, Q("52.650696 mm")))
pad3 = doc.addObject("PartDesign::Pad", "Pad002")
body3.addObject(pad3)
pad3.Profile = sketch5
pad3.Length = 150

sketch6 = doc.addObject("Sketcher::SketchObject", "Sketch005")
body3.addObject(sketch6)
sketch6.AttachmentSupport = (doc.getObject("YZ_Plane002"), [""])
sketch6.MapMode = "FlatFace"
sketch6.AttachmentOffset = App.Placement(App.Vector(0, 0, -44.599828), App.Rotation())
add_polygon(sketch6, [(-42.651, 0), (-42.657, 0), (-45.151, 10), (-42.651, 10)])
add_polygon(sketch6, [(-50.151, 10), (-52.644, 0), (-52.651, 0), (-52.651, 10)])
sketch6.addConstraint(Sketcher.Constraint("Horizontal", 0))
sketch6.addConstraint(Sketcher.Constraint("Horizontal", 2))
sketch6.addConstraint(Sketcher.Constraint("Vertical", 3))
sketch6.addConstraint(Sketcher.Constraint("Horizontal", 5))
sketch6.addConstraint(Sketcher.Constraint("Vertical", 6))
sketch6.addConstraint(Sketcher.Constraint("Horizontal", 7))
sketch6.addConstraint(Sketcher.Constraint("PointOnObject", 0, 2, -1))
sketch6.addConstraint(Sketcher.Constraint("PointOnObject", 4, 2, -1))
sketch6.addConstraint(Sketcher.Constraint("Horizontal", 2, 2, 6, 2))
sketch6.addConstraint(Sketcher.Constraint("Equal", 0, 5))
sketch6.addConstraint(Sketcher.Constraint("Equal", 2, 7))
sketch6.addConstraint(Sketcher.Constraint("DistanceY", 3, 2, 3, 1, Q("10 mm")))
sketch6.addConstraint(Sketcher.Constraint("Angle", 1, Q("104 deg")))
sketch6.addConstraint(Sketcher.Constraint("DistanceX", 2, 1, 2, 2, Q("2.5 mm")))
sketch6.addConstraint(Sketcher.Constraint("DistanceX", 5, 2, 3, 2, Q("10 mm")))
sketch6.addConstraint(Sketcher.Constraint("DistanceX", 0, 2, -1, 1, Q("42.657416 mm")))
pocket3 = doc.addObject("PartDesign::Pocket", "Pocket002")
body3.addObject(pocket3)
pocket3.Profile = sketch6
pocket3.Type = "ThroughAll"
pocket3.Reversed = True

sketch7 = doc.addObject("Sketcher::SketchObject", "Sketch006")
body3.addObject(sketch7)
sketch7.AttachmentSupport = (doc.getObject("XZ_Plane002"), [""])
sketch7.MapMode = "FlatFace"
sketch7.AttachmentOffset = App.Placement(App.Vector(0, 0, 52.650696), App.Rotation())
add_polygon(sketch7, [(-39, 50), (-39, 0), (-6, 0), (-6, 50)])
add_polygon(sketch7, [(-39, 115), (-39, 55), (-6, 55), (-6, 115)])
add_polygon(sketch7, [(-39, 145), (-39, 120), (-6, 120), (-6, 145)])
sketch7.addConstraint(Sketcher.Constraint("Vertical", 0))
sketch7.addConstraint(Sketcher.Constraint("Horizontal", 1))
sketch7.addConstraint(Sketcher.Constraint("Vertical", 2))
sketch7.addConstraint(Sketcher.Constraint("Horizontal", 3))
sketch7.addConstraint(Sketcher.Constraint("Vertical", 4))
sketch7.addConstraint(Sketcher.Constraint("Horizontal", 5))
sketch7.addConstraint(Sketcher.Constraint("Vertical", 6))
sketch7.addConstraint(Sketcher.Constraint("Horizontal", 7))
sketch7.addConstraint(Sketcher.Constraint("Vertical", 8))
sketch7.addConstraint(Sketcher.Constraint("Horizontal", 9))
sketch7.addConstraint(Sketcher.Constraint("Vertical", 10))
sketch7.addConstraint(Sketcher.Constraint("Horizontal", 11))
sketch7.addConstraint(Sketcher.Constraint("PointOnObject", 0, 2, -1))
sketch7.addConstraint(Sketcher.Constraint("Vertical", 3, 2, 4, 2))
sketch7.addConstraint(Sketcher.Constraint("Vertical", 2, 2, 5, 2))
sketch7.addConstraint(Sketcher.Constraint("Vertical", 7, 2, 8, 2))
sketch7.addConstraint(Sketcher.Constraint("Vertical", 6, 2, 9, 2))
sketch7.addConstraint(Sketcher.Constraint("DistanceX", 1, 1, 1, 2, Q("33 mm")))
sketch7.addConstraint(Sketcher.Constraint("DistanceY", 0, 2, 0, 1, Q("50 mm")))
sketch7.addConstraint(Sketcher.Constraint("DistanceY", 4, 2, 4, 1, Q("60 mm")))
sketch7.addConstraint(Sketcher.Constraint("DistanceY", 8, 2, 8, 1, Q("25 mm")))
sketch7.addConstraint(Sketcher.Constraint("DistanceY", -1, 1, 4, 2, Q("55 mm")))
sketch7.addConstraint(Sketcher.Constraint("DistanceY", -1, 1, 8, 2, Q("120 mm")))
sketch7.addConstraint(Sketcher.Constraint("DistanceX", 0, 2, -1, 1, Q("38.599828 mm")))
pocket4 = doc.addObject("PartDesign::Pocket", "Pocket003")
body3.addObject(pocket4)
pocket4.Profile = sketch7
pocket4.Type = "ThroughAll"

sketch8 = doc.addObject("Sketcher::SketchObject", "Sketch007")
body3.addObject(sketch8)
sketch8.AttachmentSupport = (doc.getObject("XZ_Plane002"), [""])
sketch8.MapMode = "FlatFace"
sketch8.AttachmentOffset = App.Placement(App.Vector(0, 0, 42.650696), App.Rotation())
add_polygon(sketch8, [(0, 150), (0, 145), (-45, 145), (-45, 150)])
add_polygon(sketch8, [(0, 120), (0, 115), (-45, 115), (-45, 120)])
sketch8.addConstraint(Sketcher.Constraint("Vertical", 0))
sketch8.addConstraint(Sketcher.Constraint("Horizontal", 1))
sketch8.addConstraint(Sketcher.Constraint("Vertical", 2))
sketch8.addConstraint(Sketcher.Constraint("Horizontal", 3))
sketch8.addConstraint(Sketcher.Constraint("Vertical", 4))
sketch8.addConstraint(Sketcher.Constraint("Horizontal", 5))
sketch8.addConstraint(Sketcher.Constraint("Vertical", 6))
sketch8.addConstraint(Sketcher.Constraint("Horizontal", 7))
sketch8.addConstraint(Sketcher.Constraint("Vertical", 3, 2, 4, 2))
sketch8.addConstraint(Sketcher.Constraint("Vertical", 2, 2, 5, 2))
sketch8.addConstraint(Sketcher.Constraint("Equal", 2, 4))
sketch8.addConstraint(Sketcher.Constraint("DistanceX", 1, 2, 1, 1, Q("45 mm")))
sketch8.addConstraint(Sketcher.Constraint("DistanceY", 0, 2, 0, 1, Q("5 mm")))
sketch8.addConstraint(Sketcher.Constraint("DistanceY", -1, 1, 0, 2, Q("145 mm")))
sketch8.addConstraint(Sketcher.Constraint("DistanceY", -1, 1, 4, 2, Q("115 mm")))
sketch8.addConstraint(Sketcher.Constraint("DistanceX", -1, 1, 0, 2, Q("0.400172 mm")))
pad4 = doc.addObject("PartDesign::Pad", "Pad003")
body3.addObject(pad4)
pad4.Profile = sketch8
pad4.Length = 35
pad4.Reversed = True

sketch9 = doc.addObject("Sketcher::SketchObject", "Sketch008")
body3.addObject(sketch9)
sketch9.AttachmentSupport = (doc.getObject("XY_Plane002"), [""])
sketch9.MapMode = "FlatFace"
sketch9.AttachmentOffset = App.Placement(App.Vector(0, 0, 150), App.Rotation())
add_polygon(sketch9, [(-41.6, -10.7), (-41.6, -13.7), (-36.6, -13.7), (-36.6, -10.7)])
add_polygon(sketch9, [(-7.6, -10.7), (-7.6, -13.7), (-2.6, -13.7), (-2.6, -10.7)])
sketch9.addConstraint(Sketcher.Constraint("Vertical", 0))
sketch9.addConstraint(Sketcher.Constraint("Horizontal", 1))
sketch9.addConstraint(Sketcher.Constraint("Vertical", 2))
sketch9.addConstraint(Sketcher.Constraint("Horizontal", 3))
sketch9.addConstraint(Sketcher.Constraint("Vertical", 4))
sketch9.addConstraint(Sketcher.Constraint("Horizontal", 5))
sketch9.addConstraint(Sketcher.Constraint("Vertical", 6))
sketch9.addConstraint(Sketcher.Constraint("Horizontal", 7))
sketch9.addConstraint(Sketcher.Constraint("Horizontal", 1, 2, 4, 2))
sketch9.addConstraint(Sketcher.Constraint("Horizontal", 3, 2, 6, 2))
sketch9.addConstraint(Sketcher.Constraint("Equal", 3, 5))
sketch9.addConstraint(Sketcher.Constraint("DistanceX", 1, 1, 1, 2, Q("5 mm")))
sketch9.addConstraint(Sketcher.Constraint("DistanceY", 0, 2, 0, 1, Q("3 mm")))
sketch9.addConstraint(Sketcher.Constraint("DistanceX", 1, 2, 4, 2, Q("29 mm")))
sketch9.addConstraint(Sketcher.Constraint("DistanceX", 0, 2, -1, 1, Q("41.599828 mm")))
sketch9.addConstraint(Sketcher.Constraint("DistanceY", 0, 2, -1, 1, Q("13.650696 mm")))
pocket5 = doc.addObject("PartDesign::Pocket", "Pocket004")
body3.addObject(pocket5)
pocket5.Profile = sketch9
pocket5.Type = "ThroughAll"

doc.recompute()
